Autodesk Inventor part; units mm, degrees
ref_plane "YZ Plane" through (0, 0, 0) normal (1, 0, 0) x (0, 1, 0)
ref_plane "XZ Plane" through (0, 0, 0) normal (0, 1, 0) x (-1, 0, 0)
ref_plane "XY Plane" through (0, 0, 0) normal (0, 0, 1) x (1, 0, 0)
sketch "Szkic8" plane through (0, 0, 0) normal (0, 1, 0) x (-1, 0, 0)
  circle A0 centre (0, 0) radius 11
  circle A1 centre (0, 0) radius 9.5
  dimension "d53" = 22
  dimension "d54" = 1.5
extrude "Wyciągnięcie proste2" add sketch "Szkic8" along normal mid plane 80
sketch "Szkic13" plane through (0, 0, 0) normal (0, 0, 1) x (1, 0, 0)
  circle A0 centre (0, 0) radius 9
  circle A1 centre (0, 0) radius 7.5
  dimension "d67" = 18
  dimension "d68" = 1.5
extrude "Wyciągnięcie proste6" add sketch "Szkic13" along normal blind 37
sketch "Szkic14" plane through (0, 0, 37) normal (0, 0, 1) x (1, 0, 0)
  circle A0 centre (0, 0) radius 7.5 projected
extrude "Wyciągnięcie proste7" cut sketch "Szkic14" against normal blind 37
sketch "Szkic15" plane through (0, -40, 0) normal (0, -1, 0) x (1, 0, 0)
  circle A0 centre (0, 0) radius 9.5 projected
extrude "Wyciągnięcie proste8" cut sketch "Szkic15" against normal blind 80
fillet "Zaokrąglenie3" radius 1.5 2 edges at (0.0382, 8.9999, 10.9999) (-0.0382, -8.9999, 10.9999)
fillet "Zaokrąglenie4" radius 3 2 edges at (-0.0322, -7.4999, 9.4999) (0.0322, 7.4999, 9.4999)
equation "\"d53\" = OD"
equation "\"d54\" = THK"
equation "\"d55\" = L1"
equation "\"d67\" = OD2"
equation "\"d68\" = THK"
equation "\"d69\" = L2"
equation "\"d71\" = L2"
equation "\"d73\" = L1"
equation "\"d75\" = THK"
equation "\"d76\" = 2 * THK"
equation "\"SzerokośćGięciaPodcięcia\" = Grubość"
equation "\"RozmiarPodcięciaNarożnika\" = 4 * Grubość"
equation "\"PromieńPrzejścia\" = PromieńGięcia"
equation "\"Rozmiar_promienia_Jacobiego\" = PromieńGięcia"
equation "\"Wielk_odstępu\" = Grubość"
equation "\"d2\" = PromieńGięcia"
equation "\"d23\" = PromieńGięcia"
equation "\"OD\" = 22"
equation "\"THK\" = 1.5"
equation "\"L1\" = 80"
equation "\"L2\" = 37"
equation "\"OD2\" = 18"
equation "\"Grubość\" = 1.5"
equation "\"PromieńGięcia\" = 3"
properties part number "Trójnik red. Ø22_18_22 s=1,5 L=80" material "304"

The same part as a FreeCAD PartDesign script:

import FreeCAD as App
import Part
import Sketcher


def edges_at(feature, points):
    """Names of the edges that pass closest to the given points."""
    edges = feature.Shape.Edges
    near = lambda p: min(range(len(edges)), key=lambda i: edges[i].distToShape(Part.Vertex(*p))[0])
    return sorted({f"Edge{near(p) + 1}" for p in points})

doc = App.newDocument("Part")
params = doc.addObject("Spreadsheet::Sheet", "Params")
for row, (alias, value) in enumerate([
    ("sketch1_diameter", "22 mm"),
    ("sketch1_diameter2", "19 mm"),
    ("pad1_length", "80 mm"),
    ("sketch2_diameter", "18 mm"),
    ("sketch2_diameter2", "15 mm"),
    ("pad2_length", "37 mm"),
    ("sketch3_diameter", "15 mm"),
    ("pocket1_length", "37 mm"),
    ("sketch4_diameter", "19 mm"),
    ("pocket2_length", "80 mm"),
    ("fillet_radius", "1.5 mm"),
    ("fillet2_radius", "3 mm"),
], start=1):
    params.set(f"A{row}", alias)
    params.set(f"B{row}", "=" + value)
    params.setAlias(f"B{row}", alias)

body = doc.addObject("PartDesign::Body", "Body")

sketch1 = body.newObject("Sketcher::SketchObject", "Sketch")
sketch1.AttachmentSupport = (doc.getObject("XZ_Plane"), [""])
sketch1.MapMode = "FlatFace"
sketch1.addGeometry(Part.Circle(App.Vector(0, 0, 0), App.Vector(0, 0, 1), 11), False)
sketch1.addGeometry(Part.Circle(App.Vector(0, 0, 0), App.Vector(0, 0, 1), 10), False)
sketch1.addConstraint(Sketcher.Constraint("Coincident", 0, 3, -1, 1))
sketch1.addConstraint(Sketcher.Constraint("Coincident", 1, 3, -1, 1))
sketch1.addConstraint(Sketcher.Constraint("Diameter", 0, 22.0))
sketch1.addConstraint(Sketcher.Constraint("Diameter", 1, 19.0))
sketch1.setExpression("Constraints[2]", "Params.sketch1_diameter")
sketch1.setExpression("Constraints[3]", "Params.sketch1_diameter2")
pad1 = body.newObject("PartDesign::Pad", "Pad")
pad1.Profile = sketch1
pad1.setExpression("Length", "Params.pad1_length")
pad1.Midplane = True

sketch2 = body.newObject("Sketcher::SketchObject", "Sketch001")
sketch2.AttachmentSupport = (doc.getObject("XY_Plane"), [""])
sketch2.MapMode = "FlatFace"
sketch2.addGeometry(Part.Circle(App.Vector(0, 0, 0), App.Vector(0, 0, 1), 9), False)
sketch2.addGeometry(Part.Circle(App.Vector(0, 0, 0), App.Vector(0, 0, 1), 8), False)
sketch2.addConstraint(Sketcher.Constraint("Coincident", 0, 3, -1, 1))
sketch2.addConstraint(Sketcher.Constraint("Coincident", 1, 3, -1, 1))
sketch2.addConstraint(Sketcher.Constraint("Diameter", 0, 18.0))
sketch2.addConstraint(Sketcher.Constraint("Diameter", 1, 15.0))
sketch2.setExpression("Constraints[2]", "Params.sketch2_diameter")
sketch2.setExpression("Constraints[3]", "Params.sketch2_diameter2")
pad2 = body.newObject("PartDesign::Pad", "Pad001")
pad2.Profile = sketch2
pad2.setExpression("Length", "Params.pad2_length")

sketch3 = body.newObject("Sketcher::SketchObject", "Sketch002")
sketch3.AttachmentSupport = (doc.getObject("XY_Plane"), [""])
sketch3.MapMode = "FlatFace"
sketch3.AttachmentOffset = App.Placement(App.Vector(0, 0, 37), App.Rotation())
sketch3.addGeometry(Part.Circle(App.Vector(0, 0, 0), App.Vector(0, 0, 1), 8), False)
sketch3.addConstraint(Sketcher.Constraint("Coincident", 0, 3, -1, 1))
sketch3.addConstraint(Sketcher.Constraint("Diameter", 0, 15.0))
sketch3.setExpression("Constraints[1]", "Params.sketch3_diameter")
pocket1 = body.newObject("PartDesign::Pocket", "Pocket")
pocket1.Profile = sketch3
pocket1.setExpression("Length", "Params.pocket1_length")

sketch4 = body.newObject("Sketcher::SketchObject", "Sketch003")
sketch4.AttachmentSupport = (doc.getObject("XZ_Plane"), [""])
sketch4.MapMode = "FlatFace"
sketch4.AttachmentOffset = App.Placement(App.Vector(0, 0, 40), App.Rotation())
sketch4.addGeometry(Part.Circle(App.Vector(0, 0, 0), App.Vector(0, 0, 1), 10), False)
sketch4.addConstraint(Sketcher.Constraint("Coincident", 0, 3, -1, 1))
sketch4.addConstraint(Sketcher.Constraint("Diameter", 0, 19.0))
sketch4.setExpression("Constraints[1]", "Params.sketch4_diameter")
pocket2 = body.newObject("PartDesign::Pocket", "Pocket001")
pocket2.Profile = sketch4
pocket2.setExpression("Length", "Params.pocket2_length")
doc.recompute()

fillet = body.newObject("PartDesign::Fillet", "Fillet")
fillet.Base = (pocket2, edges_at(pocket2, [(0.038, 9, 11), (-0.038, -9, 11)]))
fillet.setExpression("Radius", "Params.fillet_radius")
doc.recompute()

fillet2 = body.newObject("PartDesign::Fillet", "Fillet001")
fillet2.Base = (fillet, edges_at(fillet, [(-0.032, -7.5, 9.5), (0.032, 7.5, 9.5)]))
fillet2.setExpression("Radius", "Params.fillet2_radius")

doc.recompute()
